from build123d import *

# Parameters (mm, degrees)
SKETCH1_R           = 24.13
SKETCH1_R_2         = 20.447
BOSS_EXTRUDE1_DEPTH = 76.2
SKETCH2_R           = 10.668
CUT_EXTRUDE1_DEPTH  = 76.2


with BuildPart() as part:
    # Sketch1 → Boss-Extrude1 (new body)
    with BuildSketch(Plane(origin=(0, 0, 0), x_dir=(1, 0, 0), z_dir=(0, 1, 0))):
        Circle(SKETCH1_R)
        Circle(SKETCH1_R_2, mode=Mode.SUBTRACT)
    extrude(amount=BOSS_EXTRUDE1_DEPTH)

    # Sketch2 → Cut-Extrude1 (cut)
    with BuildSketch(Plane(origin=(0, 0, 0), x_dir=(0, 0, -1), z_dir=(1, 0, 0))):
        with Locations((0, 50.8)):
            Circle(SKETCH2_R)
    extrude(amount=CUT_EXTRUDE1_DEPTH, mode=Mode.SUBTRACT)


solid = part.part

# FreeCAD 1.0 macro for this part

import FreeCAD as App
import Part
import Sketcher
Q = App.Units.Quantity

doc = App.newDocument("Part")
body = doc.addObject("PartDesign::Body", "Body")

# Sketch on XZ plane
sketch1 = doc.addObject("Sketcher::SketchObject", "Sketch")
body.addObject(sketch1)
sketch1.AttachmentSupport = (doc.XZ_Plane, [""])
sketch1.MapMode = "FlatFace"
sketch1.addGeometry(Part.Circle(App.Vector(0, 0, 0), App.Vector(0, 0, 1), 24), False)
sketch1.addGeometry(Part.Circle(App.Vector(0, 0, 0), App.Vector(0, 0, 1), 20), False)
sketch1.addConstraint(Sketcher.Constraint("Coincident", 0, 3, -1, 1))
sketch1.addConstraint(Sketcher.Constraint("Coincident", 1, 3, -1, 1))
sketch1.addConstraint(Sketcher.Constraint("Diameter", 0, Q("1.9 in")))
sketch1.addConstraint(Sketcher.Constraint("Diameter", 1, Q("1.61 in")))
pad1 = doc.addObject("PartDesign::Pad", "Pad")
body.addObject(pad1)
pad1.Profile = sketch1
pad1.Length = Q("3 in")
pad1.Reversed = True

# Sketch on YZ plane
sketch2 = doc.addObject("Sketcher::SketchObject", "Sketch001")
body.addObject(sketch2)
sketch2.AttachmentSupport = (doc.YZ_Plane, [""])
sketch2.MapMode = "FlatFace"
sketch2.addGeometry(Part.Circle(App.Vector(51, 0, 0), App.Vector(0, 0, 1), 11), False)
sketch2.addConstraint(Sketcher.Constraint("PointOnObject", 0, 3, -1))
sketch2.addConstraint(Sketcher.Constraint("Diameter", 0, Q("0.84 in")))
sketch2.addConstraint(Sketcher.Constraint("DistanceX", -1, 1, 0, 3, Q("2 in")))
pocket1 = doc.addObject("PartDesign::Pocket", "Pocket")
body.addObject(pocket1)
pocket1.Profile = sketch2
pocket1.Length = Q("3 in")
pocket1.Reversed = True

doc.recompute()
